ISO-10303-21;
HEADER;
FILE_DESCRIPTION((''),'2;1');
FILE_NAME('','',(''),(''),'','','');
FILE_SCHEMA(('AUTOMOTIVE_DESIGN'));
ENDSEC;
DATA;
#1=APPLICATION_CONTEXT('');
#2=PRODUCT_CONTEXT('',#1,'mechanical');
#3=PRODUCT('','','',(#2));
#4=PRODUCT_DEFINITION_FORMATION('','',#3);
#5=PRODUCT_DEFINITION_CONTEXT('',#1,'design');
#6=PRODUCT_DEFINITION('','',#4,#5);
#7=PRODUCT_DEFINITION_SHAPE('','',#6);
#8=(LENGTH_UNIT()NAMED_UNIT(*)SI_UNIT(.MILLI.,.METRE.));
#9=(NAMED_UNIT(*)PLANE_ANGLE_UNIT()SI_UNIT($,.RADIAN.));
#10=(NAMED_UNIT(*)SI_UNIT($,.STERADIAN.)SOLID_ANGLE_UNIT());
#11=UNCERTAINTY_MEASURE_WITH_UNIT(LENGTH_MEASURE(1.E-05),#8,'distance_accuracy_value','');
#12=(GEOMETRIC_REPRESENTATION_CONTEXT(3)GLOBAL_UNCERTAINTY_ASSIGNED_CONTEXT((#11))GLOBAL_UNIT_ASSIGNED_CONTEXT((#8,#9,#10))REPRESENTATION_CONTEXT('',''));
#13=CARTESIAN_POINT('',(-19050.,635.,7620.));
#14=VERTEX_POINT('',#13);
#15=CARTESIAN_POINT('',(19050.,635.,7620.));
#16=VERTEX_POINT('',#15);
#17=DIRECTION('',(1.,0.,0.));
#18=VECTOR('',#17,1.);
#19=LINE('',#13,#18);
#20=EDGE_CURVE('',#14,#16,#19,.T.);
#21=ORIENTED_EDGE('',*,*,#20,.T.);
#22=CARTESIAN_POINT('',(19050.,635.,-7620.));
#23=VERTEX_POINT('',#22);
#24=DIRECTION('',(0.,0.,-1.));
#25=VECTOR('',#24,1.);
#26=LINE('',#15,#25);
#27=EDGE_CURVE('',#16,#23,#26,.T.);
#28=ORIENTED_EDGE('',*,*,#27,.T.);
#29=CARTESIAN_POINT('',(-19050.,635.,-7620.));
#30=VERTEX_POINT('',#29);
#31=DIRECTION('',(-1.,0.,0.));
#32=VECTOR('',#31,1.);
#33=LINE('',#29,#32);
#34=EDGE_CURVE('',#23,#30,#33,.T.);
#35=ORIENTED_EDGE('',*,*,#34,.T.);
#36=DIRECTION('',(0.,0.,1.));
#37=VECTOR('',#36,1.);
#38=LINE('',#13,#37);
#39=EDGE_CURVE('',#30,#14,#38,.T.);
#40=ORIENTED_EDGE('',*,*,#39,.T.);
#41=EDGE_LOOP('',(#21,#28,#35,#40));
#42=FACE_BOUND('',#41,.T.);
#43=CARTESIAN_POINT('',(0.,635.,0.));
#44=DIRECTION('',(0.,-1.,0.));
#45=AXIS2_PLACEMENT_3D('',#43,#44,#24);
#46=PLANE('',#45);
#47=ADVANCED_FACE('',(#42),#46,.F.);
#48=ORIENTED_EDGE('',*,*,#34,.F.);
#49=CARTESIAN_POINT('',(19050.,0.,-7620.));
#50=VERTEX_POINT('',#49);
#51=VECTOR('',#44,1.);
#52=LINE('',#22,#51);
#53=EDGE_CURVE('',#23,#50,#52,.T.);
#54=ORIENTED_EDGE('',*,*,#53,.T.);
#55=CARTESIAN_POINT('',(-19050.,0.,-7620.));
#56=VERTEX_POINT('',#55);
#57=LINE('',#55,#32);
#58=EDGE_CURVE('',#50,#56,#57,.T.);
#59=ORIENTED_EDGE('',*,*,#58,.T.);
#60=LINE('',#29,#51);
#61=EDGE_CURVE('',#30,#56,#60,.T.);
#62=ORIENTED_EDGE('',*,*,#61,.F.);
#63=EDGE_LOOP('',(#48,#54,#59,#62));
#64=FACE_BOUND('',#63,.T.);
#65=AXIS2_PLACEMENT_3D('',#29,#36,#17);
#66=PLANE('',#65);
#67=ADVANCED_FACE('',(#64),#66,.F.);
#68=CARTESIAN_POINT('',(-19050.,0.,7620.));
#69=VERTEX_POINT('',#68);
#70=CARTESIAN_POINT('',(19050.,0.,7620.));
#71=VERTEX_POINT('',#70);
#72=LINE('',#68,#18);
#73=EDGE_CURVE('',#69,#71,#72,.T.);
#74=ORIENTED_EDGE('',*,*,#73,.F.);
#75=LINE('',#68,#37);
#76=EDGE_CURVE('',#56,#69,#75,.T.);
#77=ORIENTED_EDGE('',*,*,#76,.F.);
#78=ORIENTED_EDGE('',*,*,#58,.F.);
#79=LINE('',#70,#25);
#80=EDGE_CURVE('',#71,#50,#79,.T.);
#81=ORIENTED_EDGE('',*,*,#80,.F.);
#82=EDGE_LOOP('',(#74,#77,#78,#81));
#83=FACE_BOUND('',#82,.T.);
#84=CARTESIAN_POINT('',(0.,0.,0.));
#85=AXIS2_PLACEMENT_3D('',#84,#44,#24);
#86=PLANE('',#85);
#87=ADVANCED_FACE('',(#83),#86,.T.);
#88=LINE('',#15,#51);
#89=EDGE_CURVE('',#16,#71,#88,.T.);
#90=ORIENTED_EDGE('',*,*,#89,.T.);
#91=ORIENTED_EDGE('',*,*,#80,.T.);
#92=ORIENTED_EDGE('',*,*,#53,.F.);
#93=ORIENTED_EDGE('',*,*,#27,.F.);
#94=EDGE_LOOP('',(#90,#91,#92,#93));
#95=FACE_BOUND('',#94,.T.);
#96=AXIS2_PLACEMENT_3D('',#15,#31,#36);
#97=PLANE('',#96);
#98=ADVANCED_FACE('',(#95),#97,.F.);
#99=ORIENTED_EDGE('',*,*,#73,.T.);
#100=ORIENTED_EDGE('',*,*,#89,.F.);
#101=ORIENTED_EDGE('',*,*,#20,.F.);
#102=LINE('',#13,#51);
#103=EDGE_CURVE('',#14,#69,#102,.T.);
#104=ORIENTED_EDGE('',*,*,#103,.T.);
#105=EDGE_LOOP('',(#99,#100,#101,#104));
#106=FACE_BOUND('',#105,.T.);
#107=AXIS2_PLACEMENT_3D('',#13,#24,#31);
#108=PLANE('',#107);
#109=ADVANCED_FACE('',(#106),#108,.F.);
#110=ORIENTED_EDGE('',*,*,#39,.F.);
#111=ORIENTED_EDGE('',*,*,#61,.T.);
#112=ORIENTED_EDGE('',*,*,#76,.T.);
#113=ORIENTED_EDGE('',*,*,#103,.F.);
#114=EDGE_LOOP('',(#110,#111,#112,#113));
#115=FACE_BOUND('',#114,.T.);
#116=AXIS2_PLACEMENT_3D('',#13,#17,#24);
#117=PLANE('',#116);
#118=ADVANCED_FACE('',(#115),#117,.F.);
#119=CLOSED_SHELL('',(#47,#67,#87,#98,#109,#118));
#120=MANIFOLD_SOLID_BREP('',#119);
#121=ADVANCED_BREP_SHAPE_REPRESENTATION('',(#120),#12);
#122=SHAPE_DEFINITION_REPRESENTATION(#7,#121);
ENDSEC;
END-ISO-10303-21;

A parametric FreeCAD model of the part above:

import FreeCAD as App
import Part
import Sketcher

V = App.Vector
Q = App.Units.Quantity


def add_polygon(sketch, points):
    """Adds a closed chain of lines whose ends are joined by coincident constraints."""
    first, n = sketch.GeometryCount, len(points)
    for a, b in zip(points, points[1:] + points[:1]):
        sketch.addGeometry(Part.LineSegment(App.Vector(*a, 0), App.Vector(*b, 0)), False)
    for i in range(n):
        sketch.addConstraint(Sketcher.Constraint("Coincident", first + i, 2, first + (i + 1) % n, 1))

doc = App.newDocument("Part")
body = doc.addObject("PartDesign::Body", "Body")

sketch1 = doc.addObject("Sketcher::SketchObject", "Sketch")
body.addObject(sketch1)
sketch1.AttachmentSupport = (doc.XZ_Plane, [""])
sketch1.MapMode = "FlatFace"
add_polygon(sketch1, [(-19050, -7620), (-19050, 7620), (19050, 7620), (19050, -7620)])
sketch1.addConstraint(Sketcher.Constraint("Vertical", 0))
sketch1.addConstraint(Sketcher.Constraint("Horizontal", 1))
sketch1.addConstraint(Sketcher.Constraint("Vertical", 2))
sketch1.addConstraint(Sketcher.Constraint("Horizontal", 3))
sketch1.addConstraint(Sketcher.Constraint("Symmetric", 0, 2, 2, 2, -1, 1))
sketch1.addConstraint(Sketcher.Constraint("DistanceX", 1, 1, 1, 2, Q("1500 in")))
sketch1.addConstraint(Sketcher.Constraint("DistanceY", 0, 1, 0, 2, Q("600 in")))
pad1 = doc.addObject("PartDesign::Pad", "Pad")
body.addObject(pad1)
pad1.Profile = sketch1
pad1.Length = Q("25 in")
pad1.Reversed = True

doc.recompute()
